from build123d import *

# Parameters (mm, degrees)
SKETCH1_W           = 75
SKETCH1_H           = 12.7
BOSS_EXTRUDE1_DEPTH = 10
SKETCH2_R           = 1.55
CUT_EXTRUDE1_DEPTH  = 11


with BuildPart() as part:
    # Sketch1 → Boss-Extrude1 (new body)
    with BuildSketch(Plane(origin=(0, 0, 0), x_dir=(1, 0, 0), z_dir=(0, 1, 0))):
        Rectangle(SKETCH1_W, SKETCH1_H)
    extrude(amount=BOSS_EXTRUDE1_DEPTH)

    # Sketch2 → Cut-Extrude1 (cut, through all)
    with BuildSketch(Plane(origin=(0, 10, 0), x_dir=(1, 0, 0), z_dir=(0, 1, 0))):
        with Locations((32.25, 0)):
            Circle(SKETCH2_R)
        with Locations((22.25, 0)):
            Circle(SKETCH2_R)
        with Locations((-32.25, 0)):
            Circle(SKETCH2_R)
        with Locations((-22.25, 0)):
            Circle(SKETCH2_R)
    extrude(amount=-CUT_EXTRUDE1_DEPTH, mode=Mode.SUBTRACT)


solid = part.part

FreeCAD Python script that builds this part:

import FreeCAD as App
import Part
import Sketcher


def add_polygon(sketch, points):
    """Adds a closed chain of lines whose ends are joined by coincident constraints."""
    first, n = sketch.GeometryCount, len(points)
    for a, b in zip(points, points[1:] + points[:1]):
        sketch.addGeometry(Part.LineSegment(App.Vector(*a, 0), App.Vector(*b, 0)), False)
    for i in range(n):
        sketch.addConstraint(Sketcher.Constraint("Coincident", first + i, 2, first + (i + 1) % n, 1))

doc = App.newDocument("Part")
body = doc.addObject("PartDesign::Body", "Body")

# Sketch on XZ plane
sketch1 = body.newObject("Sketcher::SketchObject", "Sketch")
sketch1.AttachmentSupport = (doc.getObject("XZ_Plane"), [""])
sketch1.MapMode = "FlatFace"
add_polygon(sketch1, [(-38, -6), (-38, 6), (38, 6), (38, -6)])  # lines 0-3
sketch1.addConstraint([
    Sketcher.Constraint("Vertical", 0),
    Sketcher.Constraint("Horizontal", 1),
    Sketcher.Constraint("Vertical", 2),
    Sketcher.Constraint("Horizontal", 3),
    Sketcher.Constraint("Symmetric", 0, 2, 2, 2, -1, 1),
    Sketcher.Constraint("DistanceX", 1, 1, 1, 2, 75.0),
    Sketcher.Constraint("DistanceY", 0, 1, 0, 2, 12.7),
])
pad1 = body.newObject("PartDesign::Pad", "Pad")
pad1.Profile = sketch1
pad1.Length = 10
pad1.Reversed = True

# Sketch on XZ plane
sketch2 = body.newObject("Sketcher::SketchObject", "Sketch001")
sketch2.AttachmentSupport = (doc.getObject("XZ_Plane"), [""])
sketch2.MapMode = "FlatFace"
sketch2.AttachmentOffset = App.Placement(App.Vector(0, 0, -10), App.Rotation())
sketch2.addGeometry([
    Part.Circle(App.Vector(32.2, 0, 0), App.Vector(0, 0, 1), 1.6),
    Part.Circle(App.Vector(22.2, 0, 0), App.Vector(0, 0, 1), 1.6),
    Part.Circle(App.Vector(-32.2, 0, 0), App.Vector(0, 0, 1), 1.6),
    Part.Circle(App.Vector(-22.2, 0, 0), App.Vector(0, 0, 1), 1.6),
], False)
sketch2.addConstraint([
    Sketcher.Constraint("Equal", 0, 1),
    Sketcher.Constraint("Equal", 1, 2),
    Sketcher.Constraint("Equal", 2, 3),
    Sketcher.Constraint("Symmetric", 0, 3, 2, 3, -1, 1),
    Sketcher.Constraint("Symmetric", 1, 3, 3, 3, -1, 1),
    Sketcher.Constraint("PointOnObject", 0, 3, -1),
    Sketcher.Constraint("PointOnObject", 1, 3, -1),
    Sketcher.Constraint("Diameter", 0, 3.1),
    Sketcher.Constraint("DistanceX", 1, 3, 0, 3, 10.0),
    Sketcher.Constraint("DistanceX", 2, 3, 1, 3, 54.5),
])
pocket1 = body.newObject("PartDesign::Pocket", "Pocket")
pocket1.Profile = sketch2
pocket1.Type = "ThroughAll"
pocket1.Reversed = True

doc.recompute()
